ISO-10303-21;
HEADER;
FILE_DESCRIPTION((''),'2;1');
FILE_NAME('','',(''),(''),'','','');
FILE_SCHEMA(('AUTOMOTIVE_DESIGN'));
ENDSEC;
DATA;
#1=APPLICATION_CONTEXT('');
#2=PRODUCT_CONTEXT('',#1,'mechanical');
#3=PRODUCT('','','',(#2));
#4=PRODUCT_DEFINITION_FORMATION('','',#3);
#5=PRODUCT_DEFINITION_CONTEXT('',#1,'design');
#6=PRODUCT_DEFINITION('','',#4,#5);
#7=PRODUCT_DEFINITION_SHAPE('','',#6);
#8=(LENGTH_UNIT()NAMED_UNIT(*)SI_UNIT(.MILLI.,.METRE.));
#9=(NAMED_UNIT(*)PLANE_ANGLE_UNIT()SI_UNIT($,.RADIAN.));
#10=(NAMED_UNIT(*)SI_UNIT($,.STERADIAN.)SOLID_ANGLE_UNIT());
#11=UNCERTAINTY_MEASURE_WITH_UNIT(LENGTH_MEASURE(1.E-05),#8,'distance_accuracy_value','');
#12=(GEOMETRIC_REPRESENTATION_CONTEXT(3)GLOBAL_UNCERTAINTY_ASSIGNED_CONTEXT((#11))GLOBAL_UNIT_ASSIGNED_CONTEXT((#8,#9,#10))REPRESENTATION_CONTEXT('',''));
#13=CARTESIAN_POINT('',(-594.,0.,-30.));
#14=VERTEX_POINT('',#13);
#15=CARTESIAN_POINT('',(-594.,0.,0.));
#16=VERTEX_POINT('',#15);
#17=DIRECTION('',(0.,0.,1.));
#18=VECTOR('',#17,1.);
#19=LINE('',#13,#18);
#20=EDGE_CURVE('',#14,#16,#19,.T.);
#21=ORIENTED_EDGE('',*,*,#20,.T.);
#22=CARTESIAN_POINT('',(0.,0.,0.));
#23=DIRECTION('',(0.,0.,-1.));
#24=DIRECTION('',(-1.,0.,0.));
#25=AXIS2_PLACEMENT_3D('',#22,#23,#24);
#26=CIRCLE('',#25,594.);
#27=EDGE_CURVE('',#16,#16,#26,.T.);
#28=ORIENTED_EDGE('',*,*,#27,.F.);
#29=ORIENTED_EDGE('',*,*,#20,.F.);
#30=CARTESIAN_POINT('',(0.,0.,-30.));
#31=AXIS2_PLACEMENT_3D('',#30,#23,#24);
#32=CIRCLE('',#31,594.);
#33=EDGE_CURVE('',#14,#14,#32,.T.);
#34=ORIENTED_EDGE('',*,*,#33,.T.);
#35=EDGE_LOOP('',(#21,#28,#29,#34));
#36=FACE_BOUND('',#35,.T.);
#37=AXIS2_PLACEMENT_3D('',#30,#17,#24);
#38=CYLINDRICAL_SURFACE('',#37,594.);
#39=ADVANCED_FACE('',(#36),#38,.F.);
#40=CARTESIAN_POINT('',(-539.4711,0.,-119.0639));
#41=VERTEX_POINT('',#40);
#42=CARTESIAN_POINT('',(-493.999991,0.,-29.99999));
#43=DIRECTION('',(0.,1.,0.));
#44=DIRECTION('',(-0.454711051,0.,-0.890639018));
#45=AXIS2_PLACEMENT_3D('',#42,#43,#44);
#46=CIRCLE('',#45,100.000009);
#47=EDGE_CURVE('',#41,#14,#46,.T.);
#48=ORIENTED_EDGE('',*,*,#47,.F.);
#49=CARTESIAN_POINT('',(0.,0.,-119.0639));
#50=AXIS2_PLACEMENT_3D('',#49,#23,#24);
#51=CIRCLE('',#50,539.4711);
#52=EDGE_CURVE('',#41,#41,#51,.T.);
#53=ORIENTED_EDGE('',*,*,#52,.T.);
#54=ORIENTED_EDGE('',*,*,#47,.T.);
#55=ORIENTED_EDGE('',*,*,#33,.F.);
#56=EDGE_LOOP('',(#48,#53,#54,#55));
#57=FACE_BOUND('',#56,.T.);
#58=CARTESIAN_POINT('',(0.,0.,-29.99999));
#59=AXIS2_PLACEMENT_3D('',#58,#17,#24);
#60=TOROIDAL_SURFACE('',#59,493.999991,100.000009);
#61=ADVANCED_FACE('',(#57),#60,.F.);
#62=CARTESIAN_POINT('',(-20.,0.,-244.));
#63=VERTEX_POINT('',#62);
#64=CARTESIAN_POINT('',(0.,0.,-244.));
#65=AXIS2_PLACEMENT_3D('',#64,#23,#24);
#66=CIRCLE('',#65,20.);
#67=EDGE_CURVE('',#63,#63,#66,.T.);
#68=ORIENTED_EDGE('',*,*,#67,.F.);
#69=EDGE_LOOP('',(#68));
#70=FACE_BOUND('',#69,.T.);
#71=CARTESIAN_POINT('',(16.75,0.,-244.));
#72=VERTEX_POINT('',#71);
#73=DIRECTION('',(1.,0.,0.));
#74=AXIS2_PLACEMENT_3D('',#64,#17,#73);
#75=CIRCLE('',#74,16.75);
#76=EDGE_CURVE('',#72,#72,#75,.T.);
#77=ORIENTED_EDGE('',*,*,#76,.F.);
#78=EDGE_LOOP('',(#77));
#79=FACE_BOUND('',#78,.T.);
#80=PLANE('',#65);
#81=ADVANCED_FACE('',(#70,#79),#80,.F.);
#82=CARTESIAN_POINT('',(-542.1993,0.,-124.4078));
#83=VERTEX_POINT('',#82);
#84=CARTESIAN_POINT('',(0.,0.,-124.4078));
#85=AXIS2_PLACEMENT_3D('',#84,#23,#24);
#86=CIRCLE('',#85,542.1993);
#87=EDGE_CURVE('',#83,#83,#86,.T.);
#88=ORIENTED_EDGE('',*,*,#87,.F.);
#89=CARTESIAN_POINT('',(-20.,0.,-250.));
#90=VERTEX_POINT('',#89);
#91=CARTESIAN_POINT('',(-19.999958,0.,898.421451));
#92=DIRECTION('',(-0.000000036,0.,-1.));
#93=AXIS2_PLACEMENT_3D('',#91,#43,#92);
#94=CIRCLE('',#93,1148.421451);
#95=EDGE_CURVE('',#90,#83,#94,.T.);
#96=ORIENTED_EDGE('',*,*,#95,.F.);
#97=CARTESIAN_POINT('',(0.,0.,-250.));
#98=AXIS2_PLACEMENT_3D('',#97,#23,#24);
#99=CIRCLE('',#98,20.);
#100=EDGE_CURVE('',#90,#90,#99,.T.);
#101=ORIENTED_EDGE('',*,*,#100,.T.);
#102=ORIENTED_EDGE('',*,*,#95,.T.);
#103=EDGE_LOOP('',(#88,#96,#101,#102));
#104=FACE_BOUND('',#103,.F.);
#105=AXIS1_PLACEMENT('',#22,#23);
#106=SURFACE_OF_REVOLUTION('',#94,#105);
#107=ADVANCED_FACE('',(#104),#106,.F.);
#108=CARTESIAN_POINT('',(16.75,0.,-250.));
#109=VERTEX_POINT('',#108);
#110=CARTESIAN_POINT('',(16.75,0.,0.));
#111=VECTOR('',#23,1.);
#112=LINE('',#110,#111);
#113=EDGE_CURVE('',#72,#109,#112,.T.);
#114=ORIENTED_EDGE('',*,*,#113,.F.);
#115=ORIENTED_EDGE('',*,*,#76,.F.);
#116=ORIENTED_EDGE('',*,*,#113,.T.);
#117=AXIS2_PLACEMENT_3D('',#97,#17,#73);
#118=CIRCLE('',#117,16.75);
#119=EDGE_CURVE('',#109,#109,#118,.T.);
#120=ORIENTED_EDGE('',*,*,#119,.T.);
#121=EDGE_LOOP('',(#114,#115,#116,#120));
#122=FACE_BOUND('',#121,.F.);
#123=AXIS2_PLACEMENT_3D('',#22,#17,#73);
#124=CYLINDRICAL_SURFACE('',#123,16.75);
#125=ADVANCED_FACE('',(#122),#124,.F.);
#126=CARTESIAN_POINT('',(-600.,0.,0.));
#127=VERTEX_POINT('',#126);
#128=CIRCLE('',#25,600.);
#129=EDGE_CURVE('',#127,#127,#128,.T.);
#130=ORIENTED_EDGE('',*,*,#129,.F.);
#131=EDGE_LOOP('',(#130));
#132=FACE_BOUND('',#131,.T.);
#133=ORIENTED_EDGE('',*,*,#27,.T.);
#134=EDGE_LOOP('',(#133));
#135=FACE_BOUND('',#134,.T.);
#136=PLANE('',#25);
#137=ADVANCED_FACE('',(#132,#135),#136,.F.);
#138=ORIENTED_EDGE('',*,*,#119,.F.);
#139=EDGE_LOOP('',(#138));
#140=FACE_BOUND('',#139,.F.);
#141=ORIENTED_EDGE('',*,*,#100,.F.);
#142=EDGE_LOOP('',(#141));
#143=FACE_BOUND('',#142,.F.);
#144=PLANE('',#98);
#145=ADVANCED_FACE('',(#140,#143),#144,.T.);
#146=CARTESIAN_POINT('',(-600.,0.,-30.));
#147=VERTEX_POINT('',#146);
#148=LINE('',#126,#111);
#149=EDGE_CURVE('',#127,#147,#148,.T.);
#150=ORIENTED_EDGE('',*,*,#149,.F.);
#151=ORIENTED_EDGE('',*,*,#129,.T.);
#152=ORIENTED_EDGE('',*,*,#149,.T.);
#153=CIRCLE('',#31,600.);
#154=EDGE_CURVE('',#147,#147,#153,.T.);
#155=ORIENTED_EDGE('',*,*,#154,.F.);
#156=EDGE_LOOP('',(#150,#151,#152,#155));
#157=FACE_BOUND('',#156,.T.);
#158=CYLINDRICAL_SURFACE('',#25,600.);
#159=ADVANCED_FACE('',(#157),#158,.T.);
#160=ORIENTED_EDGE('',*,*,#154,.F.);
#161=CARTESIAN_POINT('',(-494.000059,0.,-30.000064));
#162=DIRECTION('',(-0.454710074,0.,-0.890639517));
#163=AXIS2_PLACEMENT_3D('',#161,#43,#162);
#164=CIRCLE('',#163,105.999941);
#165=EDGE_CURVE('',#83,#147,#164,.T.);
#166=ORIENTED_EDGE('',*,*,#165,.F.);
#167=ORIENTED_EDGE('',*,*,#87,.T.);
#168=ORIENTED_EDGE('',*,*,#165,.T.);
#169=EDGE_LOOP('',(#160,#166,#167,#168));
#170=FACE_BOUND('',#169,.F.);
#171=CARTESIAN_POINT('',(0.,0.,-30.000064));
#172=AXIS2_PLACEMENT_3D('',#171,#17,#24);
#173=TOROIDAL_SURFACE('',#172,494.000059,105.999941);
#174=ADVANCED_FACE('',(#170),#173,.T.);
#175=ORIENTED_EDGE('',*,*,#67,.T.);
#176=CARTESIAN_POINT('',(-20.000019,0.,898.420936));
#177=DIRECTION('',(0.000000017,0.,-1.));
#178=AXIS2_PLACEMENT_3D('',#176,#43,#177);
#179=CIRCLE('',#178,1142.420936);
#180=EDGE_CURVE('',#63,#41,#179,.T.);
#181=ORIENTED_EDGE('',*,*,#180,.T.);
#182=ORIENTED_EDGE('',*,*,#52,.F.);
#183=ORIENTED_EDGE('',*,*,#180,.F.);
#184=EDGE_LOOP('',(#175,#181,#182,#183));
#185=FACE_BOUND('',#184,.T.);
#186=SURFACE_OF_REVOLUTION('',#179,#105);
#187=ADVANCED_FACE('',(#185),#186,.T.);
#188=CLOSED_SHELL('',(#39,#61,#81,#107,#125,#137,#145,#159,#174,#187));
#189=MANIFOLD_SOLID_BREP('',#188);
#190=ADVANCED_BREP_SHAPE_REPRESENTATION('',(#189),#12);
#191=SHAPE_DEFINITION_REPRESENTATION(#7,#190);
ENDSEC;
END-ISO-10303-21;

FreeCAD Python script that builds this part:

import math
import FreeCAD as App
import Part
import Sketcher
Q = App.Units.Quantity

doc = App.newDocument("Part")
body = doc.addObject("PartDesign::Body", "Body")

sketch1 = doc.addObject("Sketcher::SketchObject", "Sketch")
body.addObject(sketch1)
sketch1.AttachmentSupport = (doc.XZ_Plane, [""])
sketch1.MapMode = "FlatFace"
sketch1.addGeometry([
    Part.LineSegment(App.Vector(-600, -30, 0), App.Vector(-600, 0, 0)),
    Part.LineSegment(App.Vector(-600, 0, 0), App.Vector(-594, 0, 0)),
    Part.LineSegment(App.Vector(-594, 0, 0), App.Vector(-594, -30, 0)),
    Part.ArcOfCircle(Part.Circle(App.Vector(-494, -30, 0), App.Vector(0, 0, 1), 99.999996), math.radians(180), math.radians(242.953658)),
    Part.ArcOfCircle(Part.Circle(App.Vector(-20, 898.4211, 0), App.Vector(0, 0, 1), 1142.4211), math.radians(-117.046322), math.radians(-90)),
    Part.LineSegment(App.Vector(-20, -244, 0), App.Vector(0, -244, 0)),
    Part.LineSegment(App.Vector(0, -244, 0), App.Vector(0, -250, 0)),
    Part.LineSegment(App.Vector(0, -250, 0), App.Vector(-20, -250, 0)),
    Part.ArcOfCircle(Part.Circle(App.Vector(-20, 898.4211, 0), App.Vector(0, 0, 1), 1148.4211), math.radians(-117.046318), math.radians(-90)),
    Part.ArcOfCircle(Part.Circle(App.Vector(-494, -30, 0), App.Vector(0, 0, 1), 106.000025), math.radians(180), math.radians(242.953706)),
], False)
sketch1.addConstraint([
    Sketcher.Constraint("Coincident", 0, 2, 1, 1),
    Sketcher.Constraint("Coincident", 1, 2, 2, 1),
    Sketcher.Constraint("Tangent", 2, 2, 3, 1),
    Sketcher.Constraint("Tangent", 3, 2, 4, 1),
    Sketcher.Constraint("Tangent", 4, 2, 5, 1),
    Sketcher.Constraint("Coincident", 5, 2, 6, 1),
    Sketcher.Constraint("Coincident", 6, 2, 7, 1),
    Sketcher.Constraint("Tangent", 7, 2, 8, 2),
    Sketcher.Constraint("Tangent", 8, 1, 9, 2),
    Sketcher.Constraint("Tangent", 9, 1, 0, 1),
    Sketcher.Constraint("Vertical", 0),
    Sketcher.Constraint("Horizontal", 1),
    Sketcher.Constraint("Vertical", 2),
    Sketcher.Constraint("Horizontal", 5),
    Sketcher.Constraint("Vertical", 6),
    Sketcher.Constraint("Horizontal", 7),
    Sketcher.Constraint("Coincident", 8, 3, 4, 3),
    Sketcher.Constraint("Coincident", 9, 3, 3, 3),
    Sketcher.Constraint("PointOnObject", 0, 2, -1),
    Sketcher.Constraint("PointOnObject", 5, 2, -2),
    Sketcher.Constraint("Radius", 3, Q("100 mm")),
    Sketcher.Constraint("DistanceX", 1, 1, 1, 2, Q("6 mm")),
    Sketcher.Constraint("DistanceY", 0, 1, 0, 2, Q("30 mm")),
    Sketcher.Constraint("DistanceY", 6, 2, -1, 1, Q("250 mm")),
    Sketcher.Constraint("Radius", 8, Q("1148.421 mm")),
    Sketcher.Constraint("DistanceX", 5, 1, 5, 2, Q("20 mm")),
])
revolution = doc.addObject("PartDesign::Revolution", "Revolution")
body.addObject(revolution)
revolution.Profile = sketch1
revolution.ReferenceAxis = (sketch1, ["V_Axis"])
revolution.Angle = 360

sketch2 = doc.addObject("Sketcher::SketchObject", "Sketch001")
body.addObject(sketch2)
sketch2.AttachmentSupport = (doc.XY_Plane, [""])
sketch2.MapMode = "FlatFace"
sketch2.addGeometry(Part.Circle(App.Vector(0, 0, 0), App.Vector(0, 0, 1), 16.75), False)
sketch2.addConstraint([
    Sketcher.Constraint("Coincident", 0, 3, -1, 1),
    Sketcher.Constraint("Diameter", 0, Q("33.5 mm")),
])
pocket1 = doc.addObject("PartDesign::Pocket", "Pocket")
body.addObject(pocket1)
pocket1.Profile = sketch2
pocket1.Type = "ThroughAll"

doc.recompute()
